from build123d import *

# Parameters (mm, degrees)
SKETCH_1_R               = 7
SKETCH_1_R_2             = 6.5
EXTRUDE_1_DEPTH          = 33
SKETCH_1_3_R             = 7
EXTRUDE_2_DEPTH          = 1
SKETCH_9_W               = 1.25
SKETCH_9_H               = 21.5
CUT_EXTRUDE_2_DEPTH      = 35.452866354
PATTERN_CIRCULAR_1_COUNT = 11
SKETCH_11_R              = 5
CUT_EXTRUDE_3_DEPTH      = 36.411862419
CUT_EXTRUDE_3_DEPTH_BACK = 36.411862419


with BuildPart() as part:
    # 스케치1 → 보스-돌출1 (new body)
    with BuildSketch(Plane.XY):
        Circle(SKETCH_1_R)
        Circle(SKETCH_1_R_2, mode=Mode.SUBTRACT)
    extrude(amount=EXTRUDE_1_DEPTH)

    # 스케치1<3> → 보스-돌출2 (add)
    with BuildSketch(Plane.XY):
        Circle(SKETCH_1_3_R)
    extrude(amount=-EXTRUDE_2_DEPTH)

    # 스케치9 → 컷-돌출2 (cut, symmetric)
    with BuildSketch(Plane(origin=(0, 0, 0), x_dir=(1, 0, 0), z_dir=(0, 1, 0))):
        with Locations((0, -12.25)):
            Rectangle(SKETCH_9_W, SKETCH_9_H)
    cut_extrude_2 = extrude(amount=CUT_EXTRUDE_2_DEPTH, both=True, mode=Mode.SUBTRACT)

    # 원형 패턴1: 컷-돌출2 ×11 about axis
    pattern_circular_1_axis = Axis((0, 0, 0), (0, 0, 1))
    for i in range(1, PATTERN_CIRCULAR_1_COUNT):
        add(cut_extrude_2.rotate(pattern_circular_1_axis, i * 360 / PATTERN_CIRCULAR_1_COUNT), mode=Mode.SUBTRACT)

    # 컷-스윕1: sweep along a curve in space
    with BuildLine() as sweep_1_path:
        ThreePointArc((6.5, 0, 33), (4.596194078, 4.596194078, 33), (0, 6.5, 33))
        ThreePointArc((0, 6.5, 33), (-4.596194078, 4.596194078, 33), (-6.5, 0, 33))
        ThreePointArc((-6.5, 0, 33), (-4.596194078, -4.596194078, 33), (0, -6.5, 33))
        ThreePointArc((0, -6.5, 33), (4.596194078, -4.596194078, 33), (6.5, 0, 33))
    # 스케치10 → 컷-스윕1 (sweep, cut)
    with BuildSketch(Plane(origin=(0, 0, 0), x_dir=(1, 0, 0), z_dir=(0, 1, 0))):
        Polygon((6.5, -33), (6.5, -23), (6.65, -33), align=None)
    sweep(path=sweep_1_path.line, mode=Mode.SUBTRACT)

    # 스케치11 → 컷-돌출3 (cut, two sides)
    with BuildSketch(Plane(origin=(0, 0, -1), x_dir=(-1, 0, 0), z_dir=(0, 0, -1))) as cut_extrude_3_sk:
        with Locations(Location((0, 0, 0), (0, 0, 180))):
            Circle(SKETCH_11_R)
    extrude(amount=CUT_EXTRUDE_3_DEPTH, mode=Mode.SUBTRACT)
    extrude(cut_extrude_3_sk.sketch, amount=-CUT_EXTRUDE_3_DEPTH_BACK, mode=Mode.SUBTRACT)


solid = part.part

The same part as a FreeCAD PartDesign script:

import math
import FreeCAD as App
import Part
import Sketcher
from FreeCAD import Vector

doc = App.newDocument("Part")
body = doc.addObject("PartDesign::Body", "Body")

# Sketch on XY plane
sketch1 = doc.addObject("Sketcher::SketchObject", "Sketch")
body.addObject(sketch1)
sketch1.AttachmentSupport = (doc.XY_Plane, [""])
sketch1.MapMode = "FlatFace"
sketch1.addGeometry(Part.Circle(Vector(0, 0, 0), Vector(0, 0, 1), 7), False)
sketch1.addGeometry(Part.Circle(Vector(0, 0, 0), Vector(0, 0, 1), 6.5), False)
sketch1.addConstraint(Sketcher.Constraint("Coincident", 0, 3, -1, 1))
sketch1.addConstraint(Sketcher.Constraint("Coincident", 1, 3, -1, 1))
sketch1.addConstraint(Sketcher.Constraint("Diameter", 0, 14.0))
sketch1.addConstraint(Sketcher.Constraint("Diameter", 1, 13.0))
pad1 = doc.addObject("PartDesign::Pad", "Pad")
body.addObject(pad1)
pad1.Profile = sketch1
pad1.Length = 33

# Sketch on XY plane
sketch2 = doc.addObject("Sketcher::SketchObject", "Sketch001")
body.addObject(sketch2)
sketch2.AttachmentSupport = (doc.XY_Plane, [""])
sketch2.MapMode = "FlatFace"
sketch2.addGeometry(Part.Circle(Vector(0, 0, 0), Vector(0, 0, 1), 7), False)
sketch2.addConstraint(Sketcher.Constraint("Coincident", 0, 3, -1, 1))
sketch2.addConstraint(Sketcher.Constraint("Diameter", 0, 14.0))
pad2 = doc.addObject("PartDesign::Pad", "Pad001")
body.addObject(pad2)
pad2.Profile = sketch2
pad2.Length = 1
pad2.Reversed = True

# Sketch on XZ plane
sketch3 = doc.addObject("Sketcher::SketchObject", "Sketch002")
body.addObject(sketch3)
sketch3.AttachmentSupport = (doc.XZ_Plane, [""])
sketch3.MapMode = "FlatFace"
sketch3.addGeometry(Part.LineSegment(Vector(-0.625, 1.5, 0), Vector(-0.625, 23, 0)), False)
sketch3.addGeometry(Part.LineSegment(Vector(-0.625, 23, 0), Vector(0.625, 23, 0)), False)
sketch3.addGeometry(Part.LineSegment(Vector(0.625, 23, 0), Vector(0.625, 1.5, 0)), False)
sketch3.addGeometry(Part.LineSegment(Vector(0.625, 1.5, 0), Vector(-0.625, 1.5, 0)), False)
sketch3.addConstraint(Sketcher.Constraint("Coincident", 0, 2, 1, 1))
sketch3.addConstraint(Sketcher.Constraint("Coincident", 1, 2, 2, 1))
sketch3.addConstraint(Sketcher.Constraint("Coincident", 2, 2, 3, 1))
sketch3.addConstraint(Sketcher.Constraint("Coincident", 3, 2, 0, 1))
sketch3.addConstraint(Sketcher.Constraint("Vertical", 0))
sketch3.addConstraint(Sketcher.Constraint("Horizontal", 1))
sketch3.addConstraint(Sketcher.Constraint("Vertical", 2))
sketch3.addConstraint(Sketcher.Constraint("Horizontal", 3))
sketch3.addConstraint(Sketcher.Constraint("DistanceY", 0, 1, 0, 2, 21.5))
sketch3.addConstraint(Sketcher.Constraint("DistanceY", -1, 1, 0, 2, 23.0))
sketch3.addConstraint(Sketcher.Constraint("DistanceX", 1, 1, 1, 2, 1.25))
sketch3.addConstraint(Sketcher.Constraint("DistanceX", 0, 2, -1, 1, 0.625))
pocket1 = doc.addObject("PartDesign::Pocket", "Pocket")
body.addObject(pocket1)
pocket1.Profile = sketch3
pocket1.Length = 70.905733
pocket1.Midplane = True
doc.recompute()

polarpattern = doc.addObject("PartDesign::PolarPattern", "PolarPattern")
body.addObject(polarpattern)
polarpattern.Originals = [pocket1]
polarpattern.Axis = (doc.Z_Axis, [""])
polarpattern.Angle = 360
polarpattern.Occurrences = 11
body.Tip = polarpattern

# Sketch on XZ plane
sketch4 = doc.addObject("Sketcher::SketchObject", "Sketch003")
body.addObject(sketch4)
sketch4.AttachmentSupport = (doc.XZ_Plane, [""])
sketch4.MapMode = "FlatFace"
sketch4.addGeometry(Part.LineSegment(Vector(6.5, 23, 0), Vector(6.5, 33, 0)), False)
sketch4.addGeometry(Part.LineSegment(Vector(6.5, 33, 0), Vector(6.65, 33, 0)), False)
sketch4.addGeometry(Part.LineSegment(Vector(6.65, 33, 0), Vector(6.5, 23, 0)), False)
sketch4.addConstraint(Sketcher.Constraint("Coincident", 0, 2, 1, 1))
sketch4.addConstraint(Sketcher.Constraint("Coincident", 1, 2, 2, 1))
sketch4.addConstraint(Sketcher.Constraint("Coincident", 2, 2, 0, 1))
sketch4.addConstraint(Sketcher.Constraint("Vertical", 0))
sketch4.addConstraint(Sketcher.Constraint("Horizontal", 1))
sketch4.addConstraint(Sketcher.Constraint("DistanceY", 0, 1, 0, 2, 10.0))
sketch4.addConstraint(Sketcher.Constraint("DistanceY", -1, 1, 0, 2, 33.0))
sketch4.addConstraint(Sketcher.Constraint("DistanceX", 1, 1, 1, 2, 0.15))
sketch4.addConstraint(Sketcher.Constraint("DistanceX", -1, 1, 0, 2, 6.5))

# Sketch on XY plane
sketch5 = doc.addObject("Sketcher::SketchObject", "Sketch004")
body.addObject(sketch5)
sketch5.AttachmentSupport = (doc.XY_Plane, [""])
sketch5.MapMode = "FlatFace"
sketch5.AttachmentOffset = App.Placement(Vector(0, 0, 33), App.Rotation())
sketch5.addGeometry(Part.ArcOfCircle(Part.Circle(Vector(0, 0, 0), Vector(0, 0, 1), 6.5), math.radians(0), math.radians(90)), False)
sketch5.addGeometry(Part.ArcOfCircle(Part.Circle(Vector(0, 0, 0), Vector(0, 0, 1), 6.5), math.radians(90), math.radians(180)), False)
sketch5.addGeometry(Part.ArcOfCircle(Part.Circle(Vector(0, 0, 0), Vector(0, 0, 1), 6.5), math.radians(180), math.radians(270)), False)
sketch5.addGeometry(Part.ArcOfCircle(Part.Circle(Vector(0, 0, 0), Vector(0, 0, 1), 6.5), math.radians(-90), math.radians(0)), False)
sketch5.addConstraint(Sketcher.Constraint("Tangent", 0, 2, 1, 1))
sketch5.addConstraint(Sketcher.Constraint("Tangent", 1, 2, 2, 1))
sketch5.addConstraint(Sketcher.Constraint("Tangent", 2, 2, 3, 1))
sketch5.addConstraint(Sketcher.Constraint("Tangent", 3, 2, 0, 1))
sketch5.addConstraint(Sketcher.Constraint("Coincident", 0, 3, -1, 1))
sketch5.addConstraint(Sketcher.Constraint("Equal", 0, 1))
sketch5.addConstraint(Sketcher.Constraint("PointOnObject", 0, 2, -2))
sketch5.addConstraint(Sketcher.Constraint("PointOnObject", 1, 2, -1))
sketch5.addConstraint(Sketcher.Constraint("PointOnObject", 2, 2, -2))
sketch5.addConstraint(Sketcher.Constraint("PointOnObject", 3, 2, -1))
sketch5.addConstraint(Sketcher.Constraint("Radius", 0, 6.5))
doc.recompute()

subtractivepipe = doc.addObject("PartDesign::SubtractivePipe", "SubtractivePipe")
body.addObject(subtractivepipe)
subtractivepipe.Profile = sketch4
subtractivepipe.Spine = (sketch5, ["Edge1", "Edge2", "Edge3", "Edge4"])

# Sketch on XY plane
sketch6 = doc.addObject("Sketcher::SketchObject", "Sketch005")
body.addObject(sketch6)
sketch6.AttachmentSupport = (doc.XY_Plane, [""])
sketch6.MapMode = "FlatFace"
sketch6.AttachmentOffset = App.Placement(Vector(0, 0, -1), App.Rotation())
sketch6.addGeometry(Part.Circle(Vector(0, 0, 0), Vector(0, 0, 1), 5), False)
sketch6.addConstraint(Sketcher.Constraint("Coincident", 0, 3, -1, 1))
sketch6.addConstraint(Sketcher.Constraint("Diameter", 0, 10.0))
pocket2 = doc.addObject("PartDesign::Pocket", "Pocket001")
body.addObject(pocket2)
pocket2.Profile = sketch6
pocket2.Type = "ThroughAll"
pocket2.Midplane = True

doc.recompute()
